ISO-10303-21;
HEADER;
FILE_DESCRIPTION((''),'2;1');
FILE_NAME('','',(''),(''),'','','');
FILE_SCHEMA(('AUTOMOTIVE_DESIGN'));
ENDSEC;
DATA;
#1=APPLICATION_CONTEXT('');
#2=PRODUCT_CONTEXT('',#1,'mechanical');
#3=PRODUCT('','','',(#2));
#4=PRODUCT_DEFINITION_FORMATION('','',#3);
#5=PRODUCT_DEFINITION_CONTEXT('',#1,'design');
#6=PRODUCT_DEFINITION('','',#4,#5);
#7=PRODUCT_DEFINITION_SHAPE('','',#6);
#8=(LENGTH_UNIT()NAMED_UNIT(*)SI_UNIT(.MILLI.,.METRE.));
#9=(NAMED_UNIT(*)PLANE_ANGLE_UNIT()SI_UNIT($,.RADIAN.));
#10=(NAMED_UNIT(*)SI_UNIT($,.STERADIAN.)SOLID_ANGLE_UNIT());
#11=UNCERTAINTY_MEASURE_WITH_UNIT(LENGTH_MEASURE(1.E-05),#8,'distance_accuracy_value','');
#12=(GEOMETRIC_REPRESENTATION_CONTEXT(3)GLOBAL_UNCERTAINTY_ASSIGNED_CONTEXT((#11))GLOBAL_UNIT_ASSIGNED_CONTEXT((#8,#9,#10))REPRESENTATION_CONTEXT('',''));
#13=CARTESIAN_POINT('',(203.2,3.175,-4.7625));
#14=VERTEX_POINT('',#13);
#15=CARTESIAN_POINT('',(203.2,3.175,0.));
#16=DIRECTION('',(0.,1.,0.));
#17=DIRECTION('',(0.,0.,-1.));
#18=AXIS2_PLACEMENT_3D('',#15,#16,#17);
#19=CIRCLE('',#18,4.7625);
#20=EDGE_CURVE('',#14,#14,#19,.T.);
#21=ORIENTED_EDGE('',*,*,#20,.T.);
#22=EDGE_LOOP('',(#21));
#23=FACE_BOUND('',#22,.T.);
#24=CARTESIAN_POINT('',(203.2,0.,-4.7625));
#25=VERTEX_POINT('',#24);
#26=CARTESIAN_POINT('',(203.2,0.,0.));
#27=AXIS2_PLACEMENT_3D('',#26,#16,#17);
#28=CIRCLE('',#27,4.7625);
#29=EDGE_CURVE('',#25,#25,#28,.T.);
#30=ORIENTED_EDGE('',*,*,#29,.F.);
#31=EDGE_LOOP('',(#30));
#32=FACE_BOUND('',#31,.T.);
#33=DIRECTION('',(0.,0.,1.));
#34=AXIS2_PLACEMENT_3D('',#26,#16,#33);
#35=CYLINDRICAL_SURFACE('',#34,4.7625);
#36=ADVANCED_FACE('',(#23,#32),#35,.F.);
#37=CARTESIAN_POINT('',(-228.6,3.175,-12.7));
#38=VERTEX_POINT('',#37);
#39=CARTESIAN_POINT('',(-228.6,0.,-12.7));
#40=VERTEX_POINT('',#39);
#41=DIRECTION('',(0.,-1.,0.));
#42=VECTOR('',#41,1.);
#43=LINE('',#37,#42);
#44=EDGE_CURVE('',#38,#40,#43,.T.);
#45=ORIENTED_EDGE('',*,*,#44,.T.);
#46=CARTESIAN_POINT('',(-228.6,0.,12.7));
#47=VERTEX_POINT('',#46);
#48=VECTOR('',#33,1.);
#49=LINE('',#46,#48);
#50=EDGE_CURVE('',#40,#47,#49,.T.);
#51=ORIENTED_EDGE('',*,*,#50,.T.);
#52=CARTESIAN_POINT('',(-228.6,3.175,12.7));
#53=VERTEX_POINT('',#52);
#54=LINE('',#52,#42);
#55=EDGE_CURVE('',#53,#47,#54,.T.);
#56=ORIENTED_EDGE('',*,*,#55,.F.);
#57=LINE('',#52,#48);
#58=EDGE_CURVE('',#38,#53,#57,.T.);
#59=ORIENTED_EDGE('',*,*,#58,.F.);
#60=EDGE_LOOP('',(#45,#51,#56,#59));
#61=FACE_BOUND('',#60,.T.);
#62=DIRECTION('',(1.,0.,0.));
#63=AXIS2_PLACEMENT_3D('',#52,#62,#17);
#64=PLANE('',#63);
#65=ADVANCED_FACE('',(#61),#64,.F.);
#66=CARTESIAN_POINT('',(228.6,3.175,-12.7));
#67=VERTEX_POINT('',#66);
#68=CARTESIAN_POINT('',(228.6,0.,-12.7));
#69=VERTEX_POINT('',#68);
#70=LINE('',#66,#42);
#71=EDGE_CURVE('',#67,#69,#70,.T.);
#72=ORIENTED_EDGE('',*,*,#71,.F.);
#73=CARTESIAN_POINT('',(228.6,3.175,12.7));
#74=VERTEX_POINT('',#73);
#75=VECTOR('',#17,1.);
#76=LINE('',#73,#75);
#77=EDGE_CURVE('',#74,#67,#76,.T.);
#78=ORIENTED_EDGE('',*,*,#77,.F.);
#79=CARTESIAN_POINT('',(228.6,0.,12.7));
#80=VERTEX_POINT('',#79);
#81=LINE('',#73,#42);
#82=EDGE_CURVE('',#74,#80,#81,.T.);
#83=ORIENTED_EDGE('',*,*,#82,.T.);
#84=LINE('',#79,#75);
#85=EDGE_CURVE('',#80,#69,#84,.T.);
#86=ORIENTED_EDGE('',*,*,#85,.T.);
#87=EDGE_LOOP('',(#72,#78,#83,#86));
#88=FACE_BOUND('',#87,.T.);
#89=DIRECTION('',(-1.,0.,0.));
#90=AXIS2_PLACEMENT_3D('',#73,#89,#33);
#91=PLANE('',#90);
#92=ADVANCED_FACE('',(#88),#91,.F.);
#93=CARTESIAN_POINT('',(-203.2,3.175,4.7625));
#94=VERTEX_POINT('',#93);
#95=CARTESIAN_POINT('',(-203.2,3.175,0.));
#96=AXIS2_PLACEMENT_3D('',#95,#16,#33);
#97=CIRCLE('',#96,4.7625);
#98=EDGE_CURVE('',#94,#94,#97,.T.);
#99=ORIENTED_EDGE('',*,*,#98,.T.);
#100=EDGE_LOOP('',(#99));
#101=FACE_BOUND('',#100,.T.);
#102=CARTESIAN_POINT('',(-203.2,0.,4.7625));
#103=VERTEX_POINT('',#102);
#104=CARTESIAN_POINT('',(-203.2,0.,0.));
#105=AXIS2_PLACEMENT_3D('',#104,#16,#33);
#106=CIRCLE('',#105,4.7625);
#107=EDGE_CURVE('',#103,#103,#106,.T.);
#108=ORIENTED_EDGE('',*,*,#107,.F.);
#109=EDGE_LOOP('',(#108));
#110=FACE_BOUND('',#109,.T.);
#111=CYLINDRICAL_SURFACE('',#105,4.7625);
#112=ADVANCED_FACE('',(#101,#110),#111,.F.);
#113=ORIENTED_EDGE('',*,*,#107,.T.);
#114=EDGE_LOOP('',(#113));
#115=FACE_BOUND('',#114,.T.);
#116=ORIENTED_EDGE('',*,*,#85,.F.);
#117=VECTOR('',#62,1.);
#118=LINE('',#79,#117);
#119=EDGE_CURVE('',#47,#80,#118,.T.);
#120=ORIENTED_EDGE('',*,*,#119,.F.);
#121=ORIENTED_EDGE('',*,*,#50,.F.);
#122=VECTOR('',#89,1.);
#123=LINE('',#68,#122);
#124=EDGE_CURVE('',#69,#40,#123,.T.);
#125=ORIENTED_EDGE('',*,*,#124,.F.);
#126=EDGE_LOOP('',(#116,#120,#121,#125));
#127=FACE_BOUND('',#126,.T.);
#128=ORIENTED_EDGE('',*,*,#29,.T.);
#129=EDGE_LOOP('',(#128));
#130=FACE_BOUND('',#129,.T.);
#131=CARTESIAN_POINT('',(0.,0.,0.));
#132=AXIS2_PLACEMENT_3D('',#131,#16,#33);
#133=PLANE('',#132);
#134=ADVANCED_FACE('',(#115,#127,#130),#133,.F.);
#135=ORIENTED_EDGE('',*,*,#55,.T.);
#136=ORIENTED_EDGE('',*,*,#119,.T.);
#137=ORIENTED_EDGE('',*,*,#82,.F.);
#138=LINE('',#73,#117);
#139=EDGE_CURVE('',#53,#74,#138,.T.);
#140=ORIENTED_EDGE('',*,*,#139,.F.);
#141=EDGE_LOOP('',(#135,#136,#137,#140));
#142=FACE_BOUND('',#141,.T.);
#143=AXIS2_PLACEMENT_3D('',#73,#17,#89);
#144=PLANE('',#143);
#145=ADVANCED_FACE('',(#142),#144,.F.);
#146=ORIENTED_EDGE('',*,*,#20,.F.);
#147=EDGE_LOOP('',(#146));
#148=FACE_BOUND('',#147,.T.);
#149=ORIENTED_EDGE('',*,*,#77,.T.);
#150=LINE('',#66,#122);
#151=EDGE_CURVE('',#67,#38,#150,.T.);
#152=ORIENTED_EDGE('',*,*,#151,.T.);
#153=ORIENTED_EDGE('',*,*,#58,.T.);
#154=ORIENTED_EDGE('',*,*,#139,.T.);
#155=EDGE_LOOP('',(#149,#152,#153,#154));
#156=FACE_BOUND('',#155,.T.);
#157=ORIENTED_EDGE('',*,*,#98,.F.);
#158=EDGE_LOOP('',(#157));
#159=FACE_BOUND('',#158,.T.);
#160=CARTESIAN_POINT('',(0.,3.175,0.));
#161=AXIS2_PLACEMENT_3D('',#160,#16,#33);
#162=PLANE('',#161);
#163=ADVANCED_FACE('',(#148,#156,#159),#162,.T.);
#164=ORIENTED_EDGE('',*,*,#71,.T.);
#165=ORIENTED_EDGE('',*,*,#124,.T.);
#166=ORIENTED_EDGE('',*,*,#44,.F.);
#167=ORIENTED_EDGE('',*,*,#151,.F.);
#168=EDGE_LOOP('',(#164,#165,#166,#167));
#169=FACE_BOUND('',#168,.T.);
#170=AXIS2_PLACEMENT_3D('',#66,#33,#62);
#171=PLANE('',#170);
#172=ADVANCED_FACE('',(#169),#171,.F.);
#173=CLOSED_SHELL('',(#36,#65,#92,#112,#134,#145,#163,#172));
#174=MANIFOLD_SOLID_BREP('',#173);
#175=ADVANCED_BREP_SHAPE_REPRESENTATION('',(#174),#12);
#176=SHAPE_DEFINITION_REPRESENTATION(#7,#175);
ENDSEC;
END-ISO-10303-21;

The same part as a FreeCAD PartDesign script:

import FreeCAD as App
import Part
import Sketcher
from FreeCAD import Vector
Q = App.Units.Quantity


def add_polygon(sketch, points):
    """Adds a closed chain of lines whose ends are joined by coincident constraints."""
    first, n = sketch.GeometryCount, len(points)
    for a, b in zip(points, points[1:] + points[:1]):
        sketch.addGeometry(Part.LineSegment(App.Vector(*a, 0), App.Vector(*b, 0)), False)
    for i in range(n):
        sketch.addConstraint(Sketcher.Constraint("Coincident", first + i, 2, first + (i + 1) % n, 1))

doc = App.newDocument("Part")
params = doc.addObject("Spreadsheet::Sheet", "Params")
for row, (alias, value) in enumerate([
    ("sketch1_width", "18 in"),
    ("sketch1_height", "1 in"),
    ("pad1_length", "0.125 in"),
    ("sketch2_diameter", "0.375 in"),
], start=1):
    params.set(f"A{row}", alias)
    params.set(f"B{row}", "=" + value)
    params.setAlias(f"B{row}", alias)

body = doc.addObject("PartDesign::Body", "Body")

sketch1 = body.newObject("Sketcher::SketchObject", "Sketch")
sketch1.AttachmentSupport = (doc.getObject("XZ_Plane"), [""])
sketch1.MapMode = "FlatFace"
add_polygon(sketch1, [(-229, -13), (-229, 13), (229, 13), (229, -13)])
sketch1.addConstraint(Sketcher.Constraint("Vertical", 0))
sketch1.addConstraint(Sketcher.Constraint("Horizontal", 1))
sketch1.addConstraint(Sketcher.Constraint("Vertical", 2))
sketch1.addConstraint(Sketcher.Constraint("Horizontal", 3))
sketch1.addConstraint(Sketcher.Constraint("Symmetric", 0, 2, 2, 2, -1, 1))
sketch1.addConstraint(Sketcher.Constraint("DistanceX", 1, 1, 1, 2, Q("18 in")))
sketch1.addConstraint(Sketcher.Constraint("DistanceY", 0, 1, 0, 2, Q("1 in")))
sketch1.setExpression("Constraints[9]", "Params.sketch1_width")
sketch1.setExpression("Constraints[10]", "Params.sketch1_height")
pad1 = body.newObject("PartDesign::Pad", "Pad")
pad1.Profile = sketch1
pad1.setExpression("Length", "Params.pad1_length")
pad1.Reversed = True

sketch2 = body.newObject("Sketcher::SketchObject", "Sketch001")
sketch2.AttachmentSupport = (doc.getObject("XZ_Plane"), [""])
sketch2.MapMode = "FlatFace"
sketch2.AttachmentOffset = App.Placement(Vector(0, 0, -0.125 * 25.4), App.Rotation())
sketch2.addGeometry(Part.Circle(Vector(-203.2, 0, 0), Vector(0, 0, 1), 4.8), False)
sketch2.addGeometry(Part.Circle(Vector(203.2, 0, 0), Vector(0, 0, 1), 4.8), False)
sketch2.addConstraint(Sketcher.Constraint("Equal", 0, 1))
sketch2.addConstraint(Sketcher.Constraint("Symmetric", 0, 3, 1, 3, -1, 1))
sketch2.addConstraint(Sketcher.Constraint("PointOnObject", 0, 3, -1))
sketch2.addConstraint(Sketcher.Constraint("Diameter", 0, Q("0.375 in")))
sketch2.addConstraint(Sketcher.Constraint("DistanceX", 0, 3, -1, 1, Q("8 in")))
sketch2.setExpression("Constraints[3]", "Params.sketch2_diameter")
pocket1 = body.newObject("PartDesign::Pocket", "Pocket")
pocket1.Profile = sketch2
pocket1.Type = "ThroughAll"
pocket1.Reversed = True

doc.recompute()
